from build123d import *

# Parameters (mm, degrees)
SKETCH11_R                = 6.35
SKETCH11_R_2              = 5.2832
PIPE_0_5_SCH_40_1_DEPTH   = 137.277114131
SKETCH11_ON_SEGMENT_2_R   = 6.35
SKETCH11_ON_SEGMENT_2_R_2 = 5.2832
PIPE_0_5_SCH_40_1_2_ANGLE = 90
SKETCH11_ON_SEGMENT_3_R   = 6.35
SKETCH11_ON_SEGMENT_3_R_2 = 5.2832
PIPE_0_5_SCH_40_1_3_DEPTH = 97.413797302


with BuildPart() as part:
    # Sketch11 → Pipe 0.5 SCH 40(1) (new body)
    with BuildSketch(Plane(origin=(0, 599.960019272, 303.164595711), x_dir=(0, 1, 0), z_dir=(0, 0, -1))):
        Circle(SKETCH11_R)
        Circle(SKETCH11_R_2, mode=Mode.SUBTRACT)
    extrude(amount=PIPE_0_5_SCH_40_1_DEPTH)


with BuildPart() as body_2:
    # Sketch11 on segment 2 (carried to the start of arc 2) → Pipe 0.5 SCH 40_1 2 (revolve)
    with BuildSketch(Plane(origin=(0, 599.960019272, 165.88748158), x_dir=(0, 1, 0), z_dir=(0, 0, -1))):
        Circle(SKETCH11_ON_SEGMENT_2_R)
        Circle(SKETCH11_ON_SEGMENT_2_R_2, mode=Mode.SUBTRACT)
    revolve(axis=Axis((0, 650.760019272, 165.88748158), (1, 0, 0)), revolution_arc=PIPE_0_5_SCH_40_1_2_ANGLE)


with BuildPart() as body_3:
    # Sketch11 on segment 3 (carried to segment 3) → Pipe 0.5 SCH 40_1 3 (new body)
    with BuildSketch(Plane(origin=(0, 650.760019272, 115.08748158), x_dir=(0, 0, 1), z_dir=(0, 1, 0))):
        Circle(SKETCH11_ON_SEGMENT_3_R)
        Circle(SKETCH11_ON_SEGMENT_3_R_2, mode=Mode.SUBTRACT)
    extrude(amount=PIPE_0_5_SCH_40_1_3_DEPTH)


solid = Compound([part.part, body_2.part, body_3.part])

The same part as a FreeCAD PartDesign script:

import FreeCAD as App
import Part
import Sketcher
from FreeCAD import Vector
Q = App.Units.Quantity

doc = App.newDocument("Part")
params = doc.addObject("Spreadsheet::Sheet", "Params")
for row, (alias, value) in enumerate([
    ("sketch1_diameter", "0.5 in"),
    ("sketch1_diameter2", "0.416 in"),
    ("pad1_length", "137.277114 mm"),
    ("sketch2_diameter", "0.5 in"),
    ("sketch2_diameter2", "0.416 in"),
    ("revolution_angle", "90 deg"),
    ("sketch3_diameter", "0.5 in"),
    ("sketch3_diameter2", "0.416 in"),
    ("pad2_length", "97.413797 mm"),
], start=1):
    params.set(f"A{row}", alias)
    params.set(f"B{row}", "=" + value)
    params.setAlias(f"B{row}", alias)

body = doc.addObject("PartDesign::Body", "Body")

sketch1 = body.newObject("Sketcher::SketchObject", "Sketch")
sketch1.AttachmentSupport = (doc.getObject("XY_Plane"), [""])
sketch1.MapMode = "FlatFace"
sketch1.AttachmentOffset = App.Placement(Vector(0, 0, 303.164596), App.Rotation())
sketch1.addGeometry(Part.Circle(Vector(0, 599.960019, 0), Vector(0, 0, 1), 6.35), False)
sketch1.addGeometry(Part.Circle(Vector(0, 599.960019, 0), Vector(0, 0, 1), 5.2832), False)
sketch1.addConstraint(Sketcher.Constraint("Coincident", 1, 3, 0, 3))
sketch1.addConstraint(Sketcher.Constraint("PointOnObject", 0, 3, -2))
sketch1.addConstraint(Sketcher.Constraint("Diameter", 0, Q("0.5 in")))
sketch1.addConstraint(Sketcher.Constraint("Diameter", 1, Q("0.416 in")))
sketch1.addConstraint(Sketcher.Constraint("DistanceY", -1, 1, 0, 3, 599.960019))
sketch1.setExpression("Constraints[2]", "Params.sketch1_diameter")
sketch1.setExpression("Constraints[3]", "Params.sketch1_diameter2")
pad1 = body.newObject("PartDesign::Pad", "Pad")
pad1.Profile = sketch1
pad1.setExpression("Length", "Params.pad1_length")
pad1.Reversed = True
body2 = doc.addObject("PartDesign::Body", "Body001")

sketch2 = body2.newObject("Sketcher::SketchObject", "Sketch001")
sketch2.AttachmentSupport = (doc.getObject("XY_Plane001"), [""])
sketch2.MapMode = "FlatFace"
sketch2.AttachmentOffset = App.Placement(Vector(0, 0, 165.887482), App.Rotation())
sketch2.addGeometry(Part.Circle(Vector(0, 599.960019, 0), Vector(0, 0, 1), 6.35), False)
sketch2.addGeometry(Part.Circle(Vector(0, 599.960019, 0), Vector(0, 0, 1), 5.2832), False)
sketch2.addGeometry(Part.LineSegment(Vector(0, 650.760019, 0), Vector(10, 650.760019, 0)), True)
sketch2.addConstraint(Sketcher.Constraint("Horizontal", 2))
sketch2.addConstraint(Sketcher.Constraint("Coincident", 1, 3, 0, 3))
sketch2.addConstraint(Sketcher.Constraint("PointOnObject", 0, 3, -2))
sketch2.addConstraint(Sketcher.Constraint("PointOnObject", 2, 1, -2))
sketch2.addConstraint(Sketcher.Constraint("Diameter", 0, Q("0.5 in")))
sketch2.addConstraint(Sketcher.Constraint("Diameter", 1, Q("0.416 in")))
sketch2.addConstraint(Sketcher.Constraint("DistanceY", 0, 3, 2, 1, Q("2 in")))
sketch2.addConstraint(Sketcher.Constraint("DistanceX", 2, 1, 2, 2, 10.0))
sketch2.addConstraint(Sketcher.Constraint("DistanceY", -1, 1, 0, 3, 599.960019))
sketch2.setExpression("Constraints[4]", "Params.sketch2_diameter")
sketch2.setExpression("Constraints[5]", "Params.sketch2_diameter2")
revolution = body2.newObject("PartDesign::Revolution", "Revolution")
revolution.Profile = sketch2
revolution.ReferenceAxis = (sketch2, ["Axis0"])
revolution.setExpression("Angle", "Params.revolution_angle")
body3 = doc.addObject("PartDesign::Body", "Body002")

sketch3 = body3.newObject("Sketcher::SketchObject", "Sketch002")
sketch3.AttachmentSupport = (doc.getObject("XZ_Plane002"), [""])
sketch3.MapMode = "FlatFace"
sketch3.AttachmentOffset = App.Placement(Vector(0, 0, -650.760019), App.Rotation())
sketch3.addGeometry(Part.Circle(Vector(0, 115.087482, 0), Vector(0, 0, 1), 6.35), False)
sketch3.addGeometry(Part.Circle(Vector(0, 115.087482, 0), Vector(0, 0, 1), 5.2832), False)
sketch3.addConstraint(Sketcher.Constraint("Coincident", 1, 3, 0, 3))
sketch3.addConstraint(Sketcher.Constraint("PointOnObject", 0, 3, -2))
sketch3.addConstraint(Sketcher.Constraint("Diameter", 0, Q("0.5 in")))
sketch3.addConstraint(Sketcher.Constraint("Diameter", 1, Q("0.416 in")))
sketch3.addConstraint(Sketcher.Constraint("DistanceY", -1, 1, 0, 3, 115.087482))
sketch3.setExpression("Constraints[2]", "Params.sketch3_diameter")
sketch3.setExpression("Constraints[3]", "Params.sketch3_diameter2")
pad2 = body3.newObject("PartDesign::Pad", "Pad001")
pad2.Profile = sketch3
pad2.setExpression("Length", "Params.pad2_length")
pad2.Reversed = True

doc.recompute()
